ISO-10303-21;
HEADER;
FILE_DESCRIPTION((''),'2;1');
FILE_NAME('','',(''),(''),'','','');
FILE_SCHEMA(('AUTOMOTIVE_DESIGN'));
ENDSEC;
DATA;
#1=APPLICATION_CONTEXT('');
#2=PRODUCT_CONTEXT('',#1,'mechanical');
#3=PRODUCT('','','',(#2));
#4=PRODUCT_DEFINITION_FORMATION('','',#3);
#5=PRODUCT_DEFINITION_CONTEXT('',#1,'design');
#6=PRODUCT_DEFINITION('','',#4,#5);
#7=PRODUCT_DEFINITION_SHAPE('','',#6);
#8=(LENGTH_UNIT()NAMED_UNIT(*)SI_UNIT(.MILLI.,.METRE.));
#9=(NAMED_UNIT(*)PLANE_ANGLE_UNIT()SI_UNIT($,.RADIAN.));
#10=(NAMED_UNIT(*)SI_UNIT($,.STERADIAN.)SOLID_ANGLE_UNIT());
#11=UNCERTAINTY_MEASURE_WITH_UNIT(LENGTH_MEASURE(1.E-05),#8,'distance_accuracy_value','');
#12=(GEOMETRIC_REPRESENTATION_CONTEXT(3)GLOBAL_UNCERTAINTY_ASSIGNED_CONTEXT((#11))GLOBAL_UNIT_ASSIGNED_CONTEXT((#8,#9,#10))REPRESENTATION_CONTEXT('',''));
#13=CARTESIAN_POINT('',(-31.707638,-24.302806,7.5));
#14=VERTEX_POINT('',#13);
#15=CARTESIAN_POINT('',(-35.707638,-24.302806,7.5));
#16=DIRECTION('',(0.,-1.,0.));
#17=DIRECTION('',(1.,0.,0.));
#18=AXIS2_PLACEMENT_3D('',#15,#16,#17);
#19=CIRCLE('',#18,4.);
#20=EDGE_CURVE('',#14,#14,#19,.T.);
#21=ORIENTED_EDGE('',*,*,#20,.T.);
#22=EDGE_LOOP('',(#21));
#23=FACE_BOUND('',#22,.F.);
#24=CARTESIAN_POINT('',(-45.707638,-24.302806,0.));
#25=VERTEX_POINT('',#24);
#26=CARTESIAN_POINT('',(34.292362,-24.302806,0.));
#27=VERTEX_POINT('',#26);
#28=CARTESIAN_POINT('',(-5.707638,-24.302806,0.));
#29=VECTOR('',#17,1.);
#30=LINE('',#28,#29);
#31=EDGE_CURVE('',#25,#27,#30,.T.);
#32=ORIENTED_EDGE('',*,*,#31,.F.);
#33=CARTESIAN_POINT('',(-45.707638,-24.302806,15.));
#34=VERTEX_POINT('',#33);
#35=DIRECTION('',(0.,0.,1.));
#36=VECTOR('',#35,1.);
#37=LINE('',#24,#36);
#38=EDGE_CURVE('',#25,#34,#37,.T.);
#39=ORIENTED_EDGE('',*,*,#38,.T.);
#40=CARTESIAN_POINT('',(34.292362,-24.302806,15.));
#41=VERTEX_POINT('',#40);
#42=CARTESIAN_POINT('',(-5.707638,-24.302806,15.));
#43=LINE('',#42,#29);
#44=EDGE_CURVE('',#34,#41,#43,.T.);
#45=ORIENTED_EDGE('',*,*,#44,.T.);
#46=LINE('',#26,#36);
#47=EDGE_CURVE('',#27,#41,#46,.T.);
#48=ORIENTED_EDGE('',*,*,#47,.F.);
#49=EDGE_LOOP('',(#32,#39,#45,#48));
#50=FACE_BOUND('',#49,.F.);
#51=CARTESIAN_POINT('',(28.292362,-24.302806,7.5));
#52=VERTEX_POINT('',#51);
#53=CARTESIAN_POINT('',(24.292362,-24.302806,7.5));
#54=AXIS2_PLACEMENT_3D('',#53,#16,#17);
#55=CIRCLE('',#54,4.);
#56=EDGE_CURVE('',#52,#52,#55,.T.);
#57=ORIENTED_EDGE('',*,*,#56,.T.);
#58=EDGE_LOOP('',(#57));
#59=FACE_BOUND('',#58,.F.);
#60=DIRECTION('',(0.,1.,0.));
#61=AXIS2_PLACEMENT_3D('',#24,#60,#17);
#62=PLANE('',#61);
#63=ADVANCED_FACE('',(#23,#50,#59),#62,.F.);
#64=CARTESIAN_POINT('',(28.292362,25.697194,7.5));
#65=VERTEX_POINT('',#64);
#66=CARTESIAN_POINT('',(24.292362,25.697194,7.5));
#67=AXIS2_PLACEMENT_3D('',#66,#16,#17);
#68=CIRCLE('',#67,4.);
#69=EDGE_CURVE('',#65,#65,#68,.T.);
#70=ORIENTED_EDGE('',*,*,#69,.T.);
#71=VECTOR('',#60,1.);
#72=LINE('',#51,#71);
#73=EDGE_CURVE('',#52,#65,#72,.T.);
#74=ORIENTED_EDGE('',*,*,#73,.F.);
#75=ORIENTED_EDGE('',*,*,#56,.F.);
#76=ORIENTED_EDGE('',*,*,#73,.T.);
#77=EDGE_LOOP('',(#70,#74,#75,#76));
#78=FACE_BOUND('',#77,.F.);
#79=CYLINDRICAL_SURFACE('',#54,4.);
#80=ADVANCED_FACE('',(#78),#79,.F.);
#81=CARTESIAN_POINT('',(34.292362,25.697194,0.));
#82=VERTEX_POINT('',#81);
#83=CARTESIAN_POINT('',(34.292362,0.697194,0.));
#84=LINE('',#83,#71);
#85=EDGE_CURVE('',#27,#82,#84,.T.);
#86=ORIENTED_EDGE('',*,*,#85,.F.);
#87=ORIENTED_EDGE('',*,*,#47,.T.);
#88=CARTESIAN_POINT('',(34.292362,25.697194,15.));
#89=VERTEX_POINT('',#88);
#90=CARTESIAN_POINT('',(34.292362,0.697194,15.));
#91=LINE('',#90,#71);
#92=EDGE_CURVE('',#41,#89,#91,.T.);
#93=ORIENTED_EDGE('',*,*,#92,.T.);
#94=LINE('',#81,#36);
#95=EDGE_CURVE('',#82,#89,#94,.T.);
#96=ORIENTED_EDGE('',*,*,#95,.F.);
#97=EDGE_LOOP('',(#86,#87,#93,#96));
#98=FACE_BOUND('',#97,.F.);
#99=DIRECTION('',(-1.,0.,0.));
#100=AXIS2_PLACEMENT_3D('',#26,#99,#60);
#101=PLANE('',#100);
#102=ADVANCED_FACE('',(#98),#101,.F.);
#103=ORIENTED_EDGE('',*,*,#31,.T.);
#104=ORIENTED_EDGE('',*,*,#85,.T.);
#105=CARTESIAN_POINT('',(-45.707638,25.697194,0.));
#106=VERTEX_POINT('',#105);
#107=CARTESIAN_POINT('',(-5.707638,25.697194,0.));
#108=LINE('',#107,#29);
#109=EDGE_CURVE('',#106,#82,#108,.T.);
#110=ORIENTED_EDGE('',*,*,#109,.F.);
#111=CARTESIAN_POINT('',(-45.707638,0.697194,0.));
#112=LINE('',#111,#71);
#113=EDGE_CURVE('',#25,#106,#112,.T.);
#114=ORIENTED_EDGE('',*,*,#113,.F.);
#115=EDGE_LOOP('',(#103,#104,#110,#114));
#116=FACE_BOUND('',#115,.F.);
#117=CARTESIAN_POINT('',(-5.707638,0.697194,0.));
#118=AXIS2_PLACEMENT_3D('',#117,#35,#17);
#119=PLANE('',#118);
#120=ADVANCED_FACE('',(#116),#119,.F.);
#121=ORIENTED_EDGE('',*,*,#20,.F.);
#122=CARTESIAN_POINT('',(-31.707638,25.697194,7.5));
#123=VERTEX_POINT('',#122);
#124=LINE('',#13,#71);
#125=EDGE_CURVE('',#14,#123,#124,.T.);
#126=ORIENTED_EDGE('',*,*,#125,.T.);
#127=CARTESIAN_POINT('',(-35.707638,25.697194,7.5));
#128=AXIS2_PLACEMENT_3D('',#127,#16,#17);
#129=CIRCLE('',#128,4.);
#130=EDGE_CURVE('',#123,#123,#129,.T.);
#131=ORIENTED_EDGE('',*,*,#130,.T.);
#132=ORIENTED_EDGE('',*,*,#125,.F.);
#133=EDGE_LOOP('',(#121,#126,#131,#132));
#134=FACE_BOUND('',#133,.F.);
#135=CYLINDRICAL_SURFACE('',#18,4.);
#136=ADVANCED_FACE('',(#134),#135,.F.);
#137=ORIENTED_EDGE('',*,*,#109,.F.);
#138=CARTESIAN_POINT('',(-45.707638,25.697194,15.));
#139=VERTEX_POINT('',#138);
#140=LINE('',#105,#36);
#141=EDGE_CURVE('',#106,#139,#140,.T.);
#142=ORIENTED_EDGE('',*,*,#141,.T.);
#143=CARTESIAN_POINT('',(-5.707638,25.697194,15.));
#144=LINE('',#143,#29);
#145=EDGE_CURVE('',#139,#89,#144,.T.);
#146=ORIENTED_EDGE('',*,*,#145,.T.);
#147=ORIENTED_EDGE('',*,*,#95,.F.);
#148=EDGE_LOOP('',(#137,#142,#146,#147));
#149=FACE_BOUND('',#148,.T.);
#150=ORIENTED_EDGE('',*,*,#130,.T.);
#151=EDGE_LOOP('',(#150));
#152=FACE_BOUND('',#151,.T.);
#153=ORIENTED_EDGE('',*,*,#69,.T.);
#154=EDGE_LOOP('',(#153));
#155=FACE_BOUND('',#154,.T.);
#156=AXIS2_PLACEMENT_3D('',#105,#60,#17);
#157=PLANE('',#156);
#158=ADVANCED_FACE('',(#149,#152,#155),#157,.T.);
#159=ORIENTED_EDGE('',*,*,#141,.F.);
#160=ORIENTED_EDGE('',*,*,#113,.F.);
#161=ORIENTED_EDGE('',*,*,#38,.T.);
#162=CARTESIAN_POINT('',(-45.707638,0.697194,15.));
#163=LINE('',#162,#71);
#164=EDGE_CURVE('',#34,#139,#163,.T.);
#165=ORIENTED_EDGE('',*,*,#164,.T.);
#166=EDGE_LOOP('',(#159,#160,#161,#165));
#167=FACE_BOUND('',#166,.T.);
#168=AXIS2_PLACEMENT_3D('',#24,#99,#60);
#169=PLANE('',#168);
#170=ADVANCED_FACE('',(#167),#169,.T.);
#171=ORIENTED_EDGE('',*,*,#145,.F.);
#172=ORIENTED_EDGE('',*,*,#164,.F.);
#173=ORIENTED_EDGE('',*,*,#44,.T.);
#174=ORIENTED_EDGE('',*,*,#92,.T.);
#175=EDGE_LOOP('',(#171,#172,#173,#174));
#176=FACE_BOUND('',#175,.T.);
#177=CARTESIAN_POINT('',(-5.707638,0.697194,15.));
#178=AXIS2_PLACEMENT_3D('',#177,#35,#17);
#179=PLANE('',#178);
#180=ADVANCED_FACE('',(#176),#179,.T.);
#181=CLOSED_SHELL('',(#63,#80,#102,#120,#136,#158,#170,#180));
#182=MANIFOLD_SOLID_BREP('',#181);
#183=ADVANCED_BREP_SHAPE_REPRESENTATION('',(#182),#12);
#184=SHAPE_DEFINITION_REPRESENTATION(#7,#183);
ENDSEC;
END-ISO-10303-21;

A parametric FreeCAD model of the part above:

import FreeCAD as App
import Part
import Sketcher


def add_polygon(sketch, points):
    """Adds a closed chain of lines whose ends are joined by coincident constraints."""
    first, n = sketch.GeometryCount, len(points)
    for a, b in zip(points, points[1:] + points[:1]):
        sketch.addGeometry(Part.LineSegment(App.Vector(*a, 0), App.Vector(*b, 0)), False)
    for i in range(n):
        sketch.addConstraint(Sketcher.Constraint("Coincident", first + i, 2, first + (i + 1) % n, 1))

doc = App.newDocument("Part")
body = doc.addObject("PartDesign::Body", "Body")

sketch1 = body.newObject("Sketcher::SketchObject", "Sketch")
sketch1.AttachmentSupport = (doc.getObject("XY_Plane"), [""])
sketch1.MapMode = "FlatFace"
add_polygon(sketch1, [(-45.707638, 25.697194), (-45.707638, -24.302806), (34.292362, -24.302806), (34.292362, 25.697194)])
sketch1.addConstraint(Sketcher.Constraint("Vertical", 0))
sketch1.addConstraint(Sketcher.Constraint("Horizontal", 1))
sketch1.addConstraint(Sketcher.Constraint("Vertical", 2))
sketch1.addConstraint(Sketcher.Constraint("Horizontal", 3))
sketch1.addConstraint(Sketcher.Constraint("DistanceX", 1, 1, 1, 2, 80.0))
sketch1.addConstraint(Sketcher.Constraint("DistanceY", 0, 2, 0, 1, 50.0))
sketch1.addConstraint(Sketcher.Constraint("DistanceX", 0, 2, -1, 1, 45.707638))
sketch1.addConstraint(Sketcher.Constraint("DistanceY", 0, 2, -1, 1, 24.302806))
pad1 = body.newObject("PartDesign::Pad", "Pad")
pad1.Profile = sketch1
pad1.Length = 15

sketch2 = body.newObject("Sketcher::SketchObject", "Sketch001")
sketch2.AttachmentSupport = (doc.getObject("XZ_Plane"), [""])
sketch2.MapMode = "FlatFace"
sketch2.AttachmentOffset = App.Placement(App.Vector(0, 0, 24.302806), App.Rotation())
sketch2.addGeometry(Part.Circle(App.Vector(-35.707638, 7.5, 0), App.Vector(0, 0, 1), 4), False)
sketch2.addGeometry(Part.Circle(App.Vector(24.292362, 7.5, 0), App.Vector(0, 0, 1), 4), False)
sketch2.addConstraint(Sketcher.Constraint("Equal", 0, 1))
sketch2.addConstraint(Sketcher.Constraint("Horizontal", 0, 3, 1, 3))
sketch2.addConstraint(Sketcher.Constraint("Diameter", 0, 8.0))
sketch2.addConstraint(Sketcher.Constraint("DistanceX", 0, 3, 1, 3, 60.0))
sketch2.addConstraint(Sketcher.Constraint("DistanceY", -1, 1, 0, 3, 7.5))
sketch2.addConstraint(Sketcher.Constraint("DistanceX", 0, 3, -1, 1, 35.707638))
pocket1 = body.newObject("PartDesign::Pocket", "Pocket")
pocket1.Profile = sketch2
pocket1.Length = 50

doc.recompute()
